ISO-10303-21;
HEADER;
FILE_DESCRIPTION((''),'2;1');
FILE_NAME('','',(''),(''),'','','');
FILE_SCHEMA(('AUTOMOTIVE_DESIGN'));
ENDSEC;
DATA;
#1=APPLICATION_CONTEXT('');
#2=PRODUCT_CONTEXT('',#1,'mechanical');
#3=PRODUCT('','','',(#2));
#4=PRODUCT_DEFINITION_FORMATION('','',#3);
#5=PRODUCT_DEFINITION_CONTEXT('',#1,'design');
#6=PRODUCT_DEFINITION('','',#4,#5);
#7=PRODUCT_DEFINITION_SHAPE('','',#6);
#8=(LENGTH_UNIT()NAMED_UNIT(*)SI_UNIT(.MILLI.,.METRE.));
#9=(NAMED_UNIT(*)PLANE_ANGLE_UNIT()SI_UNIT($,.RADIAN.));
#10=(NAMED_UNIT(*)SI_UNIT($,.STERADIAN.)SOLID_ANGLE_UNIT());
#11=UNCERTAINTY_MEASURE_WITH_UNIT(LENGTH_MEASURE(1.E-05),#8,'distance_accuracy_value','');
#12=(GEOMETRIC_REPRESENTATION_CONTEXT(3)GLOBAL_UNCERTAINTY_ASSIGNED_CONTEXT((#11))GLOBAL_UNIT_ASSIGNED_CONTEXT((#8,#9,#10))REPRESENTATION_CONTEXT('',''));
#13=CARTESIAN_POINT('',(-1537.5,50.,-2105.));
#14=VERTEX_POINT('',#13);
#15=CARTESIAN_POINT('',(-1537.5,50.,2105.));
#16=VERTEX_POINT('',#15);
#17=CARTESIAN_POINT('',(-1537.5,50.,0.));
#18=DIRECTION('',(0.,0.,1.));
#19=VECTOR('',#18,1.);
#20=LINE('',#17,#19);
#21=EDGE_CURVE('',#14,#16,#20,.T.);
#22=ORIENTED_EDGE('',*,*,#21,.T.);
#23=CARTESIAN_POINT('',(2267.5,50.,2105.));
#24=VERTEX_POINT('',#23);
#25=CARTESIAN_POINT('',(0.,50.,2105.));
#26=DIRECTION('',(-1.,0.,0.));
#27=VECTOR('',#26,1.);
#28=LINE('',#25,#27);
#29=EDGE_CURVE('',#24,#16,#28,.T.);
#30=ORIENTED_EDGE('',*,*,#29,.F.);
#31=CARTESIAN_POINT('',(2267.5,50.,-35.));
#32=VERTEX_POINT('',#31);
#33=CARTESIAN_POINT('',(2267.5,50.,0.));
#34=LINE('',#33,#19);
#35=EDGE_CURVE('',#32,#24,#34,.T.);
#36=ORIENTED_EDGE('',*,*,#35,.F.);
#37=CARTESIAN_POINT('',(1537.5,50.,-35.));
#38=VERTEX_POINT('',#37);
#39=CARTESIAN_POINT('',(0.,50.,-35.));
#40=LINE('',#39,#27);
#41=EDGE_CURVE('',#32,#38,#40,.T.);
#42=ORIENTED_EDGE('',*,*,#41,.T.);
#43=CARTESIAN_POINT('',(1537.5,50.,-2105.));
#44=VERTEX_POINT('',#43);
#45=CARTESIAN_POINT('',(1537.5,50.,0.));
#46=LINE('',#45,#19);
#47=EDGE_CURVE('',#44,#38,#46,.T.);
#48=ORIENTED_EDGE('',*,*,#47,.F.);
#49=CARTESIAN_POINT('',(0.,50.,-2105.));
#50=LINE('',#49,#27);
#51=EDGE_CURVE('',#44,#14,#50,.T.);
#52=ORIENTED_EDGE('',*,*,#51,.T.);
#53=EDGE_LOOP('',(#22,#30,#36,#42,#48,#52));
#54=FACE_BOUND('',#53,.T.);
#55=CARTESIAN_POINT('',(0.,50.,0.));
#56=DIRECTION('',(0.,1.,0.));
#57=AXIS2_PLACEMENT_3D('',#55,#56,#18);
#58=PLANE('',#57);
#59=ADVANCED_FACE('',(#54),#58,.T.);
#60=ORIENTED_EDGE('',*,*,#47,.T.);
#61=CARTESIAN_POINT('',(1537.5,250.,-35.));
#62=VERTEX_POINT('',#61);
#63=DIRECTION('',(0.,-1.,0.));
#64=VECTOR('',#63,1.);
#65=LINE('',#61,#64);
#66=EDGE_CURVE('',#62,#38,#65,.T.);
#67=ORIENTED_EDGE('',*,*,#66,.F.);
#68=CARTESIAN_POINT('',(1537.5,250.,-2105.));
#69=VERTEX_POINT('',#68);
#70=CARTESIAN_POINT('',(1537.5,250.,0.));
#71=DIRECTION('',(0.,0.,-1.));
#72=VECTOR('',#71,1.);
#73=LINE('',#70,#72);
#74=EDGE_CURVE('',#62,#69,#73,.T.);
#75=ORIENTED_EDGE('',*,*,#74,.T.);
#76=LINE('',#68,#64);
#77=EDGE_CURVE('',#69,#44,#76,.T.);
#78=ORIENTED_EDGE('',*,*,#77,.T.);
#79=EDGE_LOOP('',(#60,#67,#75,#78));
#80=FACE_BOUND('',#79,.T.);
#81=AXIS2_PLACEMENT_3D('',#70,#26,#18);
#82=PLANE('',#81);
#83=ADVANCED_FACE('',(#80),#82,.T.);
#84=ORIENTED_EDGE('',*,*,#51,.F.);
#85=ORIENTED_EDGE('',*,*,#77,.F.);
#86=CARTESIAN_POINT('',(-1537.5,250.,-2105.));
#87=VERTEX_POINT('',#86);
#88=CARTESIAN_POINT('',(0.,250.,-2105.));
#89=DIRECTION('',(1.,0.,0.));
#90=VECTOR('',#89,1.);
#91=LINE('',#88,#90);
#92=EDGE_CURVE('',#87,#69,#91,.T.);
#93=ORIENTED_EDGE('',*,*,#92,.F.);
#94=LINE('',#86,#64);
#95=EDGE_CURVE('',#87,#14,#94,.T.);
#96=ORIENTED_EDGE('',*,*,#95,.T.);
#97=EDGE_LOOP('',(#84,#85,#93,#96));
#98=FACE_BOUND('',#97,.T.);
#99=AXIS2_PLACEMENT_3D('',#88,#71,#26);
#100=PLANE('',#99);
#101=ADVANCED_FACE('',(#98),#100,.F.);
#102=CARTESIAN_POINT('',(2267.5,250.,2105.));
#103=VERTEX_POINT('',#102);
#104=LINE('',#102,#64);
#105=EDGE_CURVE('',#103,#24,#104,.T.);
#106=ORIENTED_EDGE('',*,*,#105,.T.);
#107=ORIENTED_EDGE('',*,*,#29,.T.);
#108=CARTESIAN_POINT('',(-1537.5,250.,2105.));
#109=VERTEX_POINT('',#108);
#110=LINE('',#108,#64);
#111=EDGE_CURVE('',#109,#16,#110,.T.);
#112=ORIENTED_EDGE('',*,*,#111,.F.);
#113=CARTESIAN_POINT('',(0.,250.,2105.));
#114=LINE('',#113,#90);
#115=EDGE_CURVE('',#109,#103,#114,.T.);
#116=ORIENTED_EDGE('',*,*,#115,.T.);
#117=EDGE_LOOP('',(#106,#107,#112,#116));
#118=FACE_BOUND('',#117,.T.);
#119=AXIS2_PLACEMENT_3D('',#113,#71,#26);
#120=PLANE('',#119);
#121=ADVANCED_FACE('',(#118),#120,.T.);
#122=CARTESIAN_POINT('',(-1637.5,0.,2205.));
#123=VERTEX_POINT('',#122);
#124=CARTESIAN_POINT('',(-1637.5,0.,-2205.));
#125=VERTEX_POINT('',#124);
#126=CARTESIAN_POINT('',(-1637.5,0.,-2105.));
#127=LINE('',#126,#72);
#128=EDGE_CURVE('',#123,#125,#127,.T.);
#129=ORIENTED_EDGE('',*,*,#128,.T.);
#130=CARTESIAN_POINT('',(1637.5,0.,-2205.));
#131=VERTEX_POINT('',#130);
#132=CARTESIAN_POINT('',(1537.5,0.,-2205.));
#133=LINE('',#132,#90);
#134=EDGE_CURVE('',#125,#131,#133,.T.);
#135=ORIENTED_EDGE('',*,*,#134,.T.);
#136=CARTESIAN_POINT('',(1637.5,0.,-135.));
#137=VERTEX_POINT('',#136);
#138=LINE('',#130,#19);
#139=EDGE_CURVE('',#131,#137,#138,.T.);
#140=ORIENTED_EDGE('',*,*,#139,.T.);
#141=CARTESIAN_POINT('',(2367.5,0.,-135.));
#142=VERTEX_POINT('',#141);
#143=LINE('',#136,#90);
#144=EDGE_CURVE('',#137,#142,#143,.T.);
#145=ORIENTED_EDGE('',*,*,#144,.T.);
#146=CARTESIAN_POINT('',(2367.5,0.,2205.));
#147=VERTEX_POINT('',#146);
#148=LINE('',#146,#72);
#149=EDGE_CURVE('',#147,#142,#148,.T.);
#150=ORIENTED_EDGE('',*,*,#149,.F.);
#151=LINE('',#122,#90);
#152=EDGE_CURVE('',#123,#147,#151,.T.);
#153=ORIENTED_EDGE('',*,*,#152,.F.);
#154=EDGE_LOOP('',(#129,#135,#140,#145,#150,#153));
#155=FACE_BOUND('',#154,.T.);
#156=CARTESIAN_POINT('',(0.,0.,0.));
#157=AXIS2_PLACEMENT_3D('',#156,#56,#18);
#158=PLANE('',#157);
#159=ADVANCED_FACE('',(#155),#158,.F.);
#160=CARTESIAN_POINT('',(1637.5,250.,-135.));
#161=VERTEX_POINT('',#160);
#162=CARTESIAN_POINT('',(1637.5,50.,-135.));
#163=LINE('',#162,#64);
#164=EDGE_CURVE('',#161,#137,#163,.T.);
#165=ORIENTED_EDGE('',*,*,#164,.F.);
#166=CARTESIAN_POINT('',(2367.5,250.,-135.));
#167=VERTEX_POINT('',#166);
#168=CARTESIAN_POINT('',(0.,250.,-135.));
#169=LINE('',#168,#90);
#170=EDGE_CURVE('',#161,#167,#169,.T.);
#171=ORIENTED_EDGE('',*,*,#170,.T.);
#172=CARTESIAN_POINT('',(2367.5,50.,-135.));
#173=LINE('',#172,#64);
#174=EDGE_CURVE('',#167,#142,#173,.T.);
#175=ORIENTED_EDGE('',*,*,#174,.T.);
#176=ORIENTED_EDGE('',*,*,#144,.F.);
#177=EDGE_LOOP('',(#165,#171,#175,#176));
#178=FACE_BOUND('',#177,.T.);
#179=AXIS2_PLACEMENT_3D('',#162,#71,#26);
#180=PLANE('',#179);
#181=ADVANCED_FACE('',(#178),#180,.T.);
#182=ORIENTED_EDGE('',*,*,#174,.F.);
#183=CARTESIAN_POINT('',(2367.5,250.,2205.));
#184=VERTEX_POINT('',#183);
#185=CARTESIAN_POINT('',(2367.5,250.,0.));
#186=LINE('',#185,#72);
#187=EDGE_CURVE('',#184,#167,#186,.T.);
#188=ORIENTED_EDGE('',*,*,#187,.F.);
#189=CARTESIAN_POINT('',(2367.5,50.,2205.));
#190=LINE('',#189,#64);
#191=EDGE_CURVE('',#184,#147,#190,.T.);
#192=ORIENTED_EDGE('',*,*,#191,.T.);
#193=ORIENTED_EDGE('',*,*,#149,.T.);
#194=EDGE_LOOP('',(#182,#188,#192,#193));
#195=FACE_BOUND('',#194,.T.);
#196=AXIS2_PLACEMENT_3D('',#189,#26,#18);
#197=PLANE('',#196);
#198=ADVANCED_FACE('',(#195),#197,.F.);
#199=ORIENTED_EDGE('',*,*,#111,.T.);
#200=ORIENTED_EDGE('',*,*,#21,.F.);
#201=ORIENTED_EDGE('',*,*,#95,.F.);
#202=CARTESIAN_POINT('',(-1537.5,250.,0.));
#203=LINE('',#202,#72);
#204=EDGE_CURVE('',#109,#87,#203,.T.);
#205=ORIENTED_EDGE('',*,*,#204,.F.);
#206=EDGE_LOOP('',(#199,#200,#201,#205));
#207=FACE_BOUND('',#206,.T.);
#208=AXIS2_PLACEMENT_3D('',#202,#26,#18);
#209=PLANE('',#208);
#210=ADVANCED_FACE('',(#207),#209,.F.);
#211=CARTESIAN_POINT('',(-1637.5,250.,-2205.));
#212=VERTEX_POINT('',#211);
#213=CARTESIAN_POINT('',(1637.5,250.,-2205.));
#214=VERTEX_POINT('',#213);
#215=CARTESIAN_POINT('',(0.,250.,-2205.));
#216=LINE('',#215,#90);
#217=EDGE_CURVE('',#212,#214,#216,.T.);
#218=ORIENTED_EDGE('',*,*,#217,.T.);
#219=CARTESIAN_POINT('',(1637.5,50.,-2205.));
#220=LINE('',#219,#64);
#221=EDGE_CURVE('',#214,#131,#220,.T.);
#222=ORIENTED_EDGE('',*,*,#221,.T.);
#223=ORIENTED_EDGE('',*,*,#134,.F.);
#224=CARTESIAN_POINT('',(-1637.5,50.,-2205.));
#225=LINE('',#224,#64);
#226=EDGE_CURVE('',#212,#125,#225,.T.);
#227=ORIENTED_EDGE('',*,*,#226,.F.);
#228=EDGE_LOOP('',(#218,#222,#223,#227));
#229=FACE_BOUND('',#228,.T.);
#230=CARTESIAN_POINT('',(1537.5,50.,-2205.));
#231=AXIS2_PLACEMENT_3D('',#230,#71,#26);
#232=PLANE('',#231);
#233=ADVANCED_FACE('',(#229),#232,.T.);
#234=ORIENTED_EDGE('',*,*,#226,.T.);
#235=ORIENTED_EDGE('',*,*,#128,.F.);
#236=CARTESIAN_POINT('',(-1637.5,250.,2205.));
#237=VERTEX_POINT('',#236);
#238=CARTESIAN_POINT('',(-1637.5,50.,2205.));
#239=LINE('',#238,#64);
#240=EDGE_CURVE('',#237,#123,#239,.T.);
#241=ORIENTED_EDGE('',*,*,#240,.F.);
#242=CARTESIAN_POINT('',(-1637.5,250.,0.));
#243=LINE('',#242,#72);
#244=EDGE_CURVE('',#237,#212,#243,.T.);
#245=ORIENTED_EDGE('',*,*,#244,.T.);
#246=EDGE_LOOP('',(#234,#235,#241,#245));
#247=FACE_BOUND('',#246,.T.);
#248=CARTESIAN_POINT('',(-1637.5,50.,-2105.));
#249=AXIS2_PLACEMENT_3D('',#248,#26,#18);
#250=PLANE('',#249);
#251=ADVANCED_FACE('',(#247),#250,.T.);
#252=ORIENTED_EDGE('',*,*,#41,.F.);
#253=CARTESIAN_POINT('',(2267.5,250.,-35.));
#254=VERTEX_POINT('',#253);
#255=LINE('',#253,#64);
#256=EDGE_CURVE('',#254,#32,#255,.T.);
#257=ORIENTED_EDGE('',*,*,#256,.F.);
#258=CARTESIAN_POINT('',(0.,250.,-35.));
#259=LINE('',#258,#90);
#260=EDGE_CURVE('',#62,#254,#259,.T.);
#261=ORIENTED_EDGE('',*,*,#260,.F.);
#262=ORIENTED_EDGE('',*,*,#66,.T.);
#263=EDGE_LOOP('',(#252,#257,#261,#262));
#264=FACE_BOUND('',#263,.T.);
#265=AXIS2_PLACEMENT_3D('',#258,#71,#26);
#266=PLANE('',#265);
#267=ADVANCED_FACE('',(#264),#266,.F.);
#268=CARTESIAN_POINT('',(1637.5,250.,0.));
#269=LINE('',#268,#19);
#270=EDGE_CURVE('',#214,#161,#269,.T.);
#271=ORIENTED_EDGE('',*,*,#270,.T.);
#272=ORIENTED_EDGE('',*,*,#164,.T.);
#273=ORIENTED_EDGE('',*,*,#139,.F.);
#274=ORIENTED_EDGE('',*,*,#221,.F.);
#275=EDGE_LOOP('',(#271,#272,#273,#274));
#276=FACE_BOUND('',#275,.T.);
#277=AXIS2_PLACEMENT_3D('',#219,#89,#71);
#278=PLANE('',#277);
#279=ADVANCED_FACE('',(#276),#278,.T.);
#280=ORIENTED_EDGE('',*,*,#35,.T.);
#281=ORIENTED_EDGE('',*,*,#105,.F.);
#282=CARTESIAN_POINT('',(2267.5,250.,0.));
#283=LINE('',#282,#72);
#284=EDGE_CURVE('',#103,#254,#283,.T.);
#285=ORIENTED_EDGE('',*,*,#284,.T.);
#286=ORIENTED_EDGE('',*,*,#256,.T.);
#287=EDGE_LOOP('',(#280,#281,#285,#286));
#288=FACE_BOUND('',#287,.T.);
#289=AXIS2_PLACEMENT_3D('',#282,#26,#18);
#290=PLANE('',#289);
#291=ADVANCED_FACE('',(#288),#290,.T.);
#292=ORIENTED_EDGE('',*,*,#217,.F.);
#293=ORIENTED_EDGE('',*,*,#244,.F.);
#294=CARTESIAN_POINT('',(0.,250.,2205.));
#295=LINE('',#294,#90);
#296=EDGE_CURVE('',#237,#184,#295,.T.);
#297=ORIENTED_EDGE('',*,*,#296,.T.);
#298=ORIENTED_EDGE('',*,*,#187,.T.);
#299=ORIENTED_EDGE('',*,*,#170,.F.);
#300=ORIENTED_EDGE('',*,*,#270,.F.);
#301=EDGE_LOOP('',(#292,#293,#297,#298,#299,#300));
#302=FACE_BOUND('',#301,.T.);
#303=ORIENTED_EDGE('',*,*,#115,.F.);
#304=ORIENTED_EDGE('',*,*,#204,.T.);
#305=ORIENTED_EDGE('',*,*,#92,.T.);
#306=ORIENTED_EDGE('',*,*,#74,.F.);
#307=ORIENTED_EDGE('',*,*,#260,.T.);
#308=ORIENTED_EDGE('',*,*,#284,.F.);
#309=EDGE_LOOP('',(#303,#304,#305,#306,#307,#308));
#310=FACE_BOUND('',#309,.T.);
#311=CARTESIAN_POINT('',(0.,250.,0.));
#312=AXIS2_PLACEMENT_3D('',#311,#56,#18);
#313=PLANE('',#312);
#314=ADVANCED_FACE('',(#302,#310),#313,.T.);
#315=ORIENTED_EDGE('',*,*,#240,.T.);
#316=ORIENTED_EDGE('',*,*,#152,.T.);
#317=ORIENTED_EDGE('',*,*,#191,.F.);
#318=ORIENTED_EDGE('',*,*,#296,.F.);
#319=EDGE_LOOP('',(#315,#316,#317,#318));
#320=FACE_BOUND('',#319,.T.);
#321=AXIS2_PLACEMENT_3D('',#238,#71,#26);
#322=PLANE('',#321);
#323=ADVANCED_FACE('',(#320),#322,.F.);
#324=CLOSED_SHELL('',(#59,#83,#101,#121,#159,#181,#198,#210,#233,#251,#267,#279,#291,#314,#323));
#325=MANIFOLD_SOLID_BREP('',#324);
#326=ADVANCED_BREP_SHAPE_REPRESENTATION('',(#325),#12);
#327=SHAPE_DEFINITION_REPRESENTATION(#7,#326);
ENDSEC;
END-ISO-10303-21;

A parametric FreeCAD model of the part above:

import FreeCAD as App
import Part
import Sketcher

V = App.Vector
Q = App.Units.Quantity


def add_polygon(sketch, points):
    """Adds a closed chain of lines whose ends are joined by coincident constraints."""
    first, n = sketch.GeometryCount, len(points)
    for a, b in zip(points, points[1:] + points[:1]):
        sketch.addGeometry(Part.LineSegment(App.Vector(*a, 0), App.Vector(*b, 0)), False)
    for i in range(n):
        sketch.addConstraint(Sketcher.Constraint("Coincident", first + i, 2, first + (i + 1) % n, 1))

doc = App.newDocument("Part")
body = doc.addObject("PartDesign::Body", "Body")

sketch1 = body.newObject("Sketcher::SketchObject", "Sketch")
sketch1.AttachmentSupport = (doc.getObject("XZ_Plane"), [""])
sketch1.MapMode = "FlatFace"
add_polygon(sketch1, [(-1638, 2205), (2368, 2205), (2368, -135), (1638, -135), (1638, -2205), (-1638, -2205)])
sketch1.addConstraint([
    Sketcher.Constraint("Horizontal", 0),
    Sketcher.Constraint("Vertical", 1),
    Sketcher.Constraint("Horizontal", 2),
    Sketcher.Constraint("Vertical", 3),
    Sketcher.Constraint("Horizontal", 4),
    Sketcher.Constraint("Vertical", 5),
    Sketcher.Constraint("Symmetric", 3, 2, 5, 2, -1, 1),
    Sketcher.Constraint("DistanceX", 0, 1, 0, 2, Q("4005 mm")),
    Sketcher.Constraint("DistanceX", 2, 2, 2, 1, Q("730 mm")),
    Sketcher.Constraint("DistanceY", 1, 2, 1, 1, Q("2340 mm")),
    Sketcher.Constraint("DistanceY", 3, 2, 3, 1, Q("2070 mm")),
])
pad1 = body.newObject("PartDesign::Pad", "Pad")
pad1.Profile = sketch1
pad1.Length = 50
pad1.Reversed = True

sketch2 = body.newObject("Sketcher::SketchObject", "Sketch001")
sketch2.AttachmentSupport = (doc.getObject("XZ_Plane"), [""])
sketch2.MapMode = "FlatFace"
add_polygon(sketch2, [(2368, -135), (1638, -135), (1638, -2205), (-1638, -2205), (-1638, 2205), (2368, 2205)])
add_polygon(sketch2, [(2268, 2105), (-1538, 2105), (-1538, -2105), (1538, -2105), (1538, -35), (2268, -35)])
sketch2.addConstraint([
    Sketcher.Constraint("Horizontal", 0),
    Sketcher.Constraint("Vertical", 1),
    Sketcher.Constraint("Horizontal", 2),
    Sketcher.Constraint("Vertical", 3),
    Sketcher.Constraint("Horizontal", 4),
    Sketcher.Constraint("Vertical", 5),
    Sketcher.Constraint("Horizontal", 6),
    Sketcher.Constraint("Vertical", 7),
    Sketcher.Constraint("Horizontal", 8),
    Sketcher.Constraint("Vertical", 9),
    Sketcher.Constraint("Horizontal", 10),
    Sketcher.Constraint("Vertical", 11),
    Sketcher.Constraint("Symmetric", 1, 2, 3, 2, -1, 1),
    Sketcher.Constraint("Symmetric", 6, 2, 8, 2, -1, 1),
    Sketcher.Constraint("Equal", 0, 10),
    Sketcher.Constraint("Equal", 1, 9),
    Sketcher.Constraint("DistanceX", 0, 2, 0, 1, Q("730 mm")),
    Sketcher.Constraint("DistanceX", 2, 2, 2, 1, Q("3275 mm")),
    Sketcher.Constraint("DistanceX", 6, 2, 6, 1, Q("3805 mm")),
    Sketcher.Constraint("DistanceY", 1, 2, 1, 1, Q("2070 mm")),
    Sketcher.Constraint("DistanceY", 3, 1, 3, 2, Q("4410 mm")),
    Sketcher.Constraint("DistanceY", 7, 2, 7, 1, Q("4210 mm")),
])
pad2 = body.newObject("PartDesign::Pad", "Pad001")
pad2.Profile = sketch2
pad2.Length = 250
pad2.Reversed = True

doc.recompute()
